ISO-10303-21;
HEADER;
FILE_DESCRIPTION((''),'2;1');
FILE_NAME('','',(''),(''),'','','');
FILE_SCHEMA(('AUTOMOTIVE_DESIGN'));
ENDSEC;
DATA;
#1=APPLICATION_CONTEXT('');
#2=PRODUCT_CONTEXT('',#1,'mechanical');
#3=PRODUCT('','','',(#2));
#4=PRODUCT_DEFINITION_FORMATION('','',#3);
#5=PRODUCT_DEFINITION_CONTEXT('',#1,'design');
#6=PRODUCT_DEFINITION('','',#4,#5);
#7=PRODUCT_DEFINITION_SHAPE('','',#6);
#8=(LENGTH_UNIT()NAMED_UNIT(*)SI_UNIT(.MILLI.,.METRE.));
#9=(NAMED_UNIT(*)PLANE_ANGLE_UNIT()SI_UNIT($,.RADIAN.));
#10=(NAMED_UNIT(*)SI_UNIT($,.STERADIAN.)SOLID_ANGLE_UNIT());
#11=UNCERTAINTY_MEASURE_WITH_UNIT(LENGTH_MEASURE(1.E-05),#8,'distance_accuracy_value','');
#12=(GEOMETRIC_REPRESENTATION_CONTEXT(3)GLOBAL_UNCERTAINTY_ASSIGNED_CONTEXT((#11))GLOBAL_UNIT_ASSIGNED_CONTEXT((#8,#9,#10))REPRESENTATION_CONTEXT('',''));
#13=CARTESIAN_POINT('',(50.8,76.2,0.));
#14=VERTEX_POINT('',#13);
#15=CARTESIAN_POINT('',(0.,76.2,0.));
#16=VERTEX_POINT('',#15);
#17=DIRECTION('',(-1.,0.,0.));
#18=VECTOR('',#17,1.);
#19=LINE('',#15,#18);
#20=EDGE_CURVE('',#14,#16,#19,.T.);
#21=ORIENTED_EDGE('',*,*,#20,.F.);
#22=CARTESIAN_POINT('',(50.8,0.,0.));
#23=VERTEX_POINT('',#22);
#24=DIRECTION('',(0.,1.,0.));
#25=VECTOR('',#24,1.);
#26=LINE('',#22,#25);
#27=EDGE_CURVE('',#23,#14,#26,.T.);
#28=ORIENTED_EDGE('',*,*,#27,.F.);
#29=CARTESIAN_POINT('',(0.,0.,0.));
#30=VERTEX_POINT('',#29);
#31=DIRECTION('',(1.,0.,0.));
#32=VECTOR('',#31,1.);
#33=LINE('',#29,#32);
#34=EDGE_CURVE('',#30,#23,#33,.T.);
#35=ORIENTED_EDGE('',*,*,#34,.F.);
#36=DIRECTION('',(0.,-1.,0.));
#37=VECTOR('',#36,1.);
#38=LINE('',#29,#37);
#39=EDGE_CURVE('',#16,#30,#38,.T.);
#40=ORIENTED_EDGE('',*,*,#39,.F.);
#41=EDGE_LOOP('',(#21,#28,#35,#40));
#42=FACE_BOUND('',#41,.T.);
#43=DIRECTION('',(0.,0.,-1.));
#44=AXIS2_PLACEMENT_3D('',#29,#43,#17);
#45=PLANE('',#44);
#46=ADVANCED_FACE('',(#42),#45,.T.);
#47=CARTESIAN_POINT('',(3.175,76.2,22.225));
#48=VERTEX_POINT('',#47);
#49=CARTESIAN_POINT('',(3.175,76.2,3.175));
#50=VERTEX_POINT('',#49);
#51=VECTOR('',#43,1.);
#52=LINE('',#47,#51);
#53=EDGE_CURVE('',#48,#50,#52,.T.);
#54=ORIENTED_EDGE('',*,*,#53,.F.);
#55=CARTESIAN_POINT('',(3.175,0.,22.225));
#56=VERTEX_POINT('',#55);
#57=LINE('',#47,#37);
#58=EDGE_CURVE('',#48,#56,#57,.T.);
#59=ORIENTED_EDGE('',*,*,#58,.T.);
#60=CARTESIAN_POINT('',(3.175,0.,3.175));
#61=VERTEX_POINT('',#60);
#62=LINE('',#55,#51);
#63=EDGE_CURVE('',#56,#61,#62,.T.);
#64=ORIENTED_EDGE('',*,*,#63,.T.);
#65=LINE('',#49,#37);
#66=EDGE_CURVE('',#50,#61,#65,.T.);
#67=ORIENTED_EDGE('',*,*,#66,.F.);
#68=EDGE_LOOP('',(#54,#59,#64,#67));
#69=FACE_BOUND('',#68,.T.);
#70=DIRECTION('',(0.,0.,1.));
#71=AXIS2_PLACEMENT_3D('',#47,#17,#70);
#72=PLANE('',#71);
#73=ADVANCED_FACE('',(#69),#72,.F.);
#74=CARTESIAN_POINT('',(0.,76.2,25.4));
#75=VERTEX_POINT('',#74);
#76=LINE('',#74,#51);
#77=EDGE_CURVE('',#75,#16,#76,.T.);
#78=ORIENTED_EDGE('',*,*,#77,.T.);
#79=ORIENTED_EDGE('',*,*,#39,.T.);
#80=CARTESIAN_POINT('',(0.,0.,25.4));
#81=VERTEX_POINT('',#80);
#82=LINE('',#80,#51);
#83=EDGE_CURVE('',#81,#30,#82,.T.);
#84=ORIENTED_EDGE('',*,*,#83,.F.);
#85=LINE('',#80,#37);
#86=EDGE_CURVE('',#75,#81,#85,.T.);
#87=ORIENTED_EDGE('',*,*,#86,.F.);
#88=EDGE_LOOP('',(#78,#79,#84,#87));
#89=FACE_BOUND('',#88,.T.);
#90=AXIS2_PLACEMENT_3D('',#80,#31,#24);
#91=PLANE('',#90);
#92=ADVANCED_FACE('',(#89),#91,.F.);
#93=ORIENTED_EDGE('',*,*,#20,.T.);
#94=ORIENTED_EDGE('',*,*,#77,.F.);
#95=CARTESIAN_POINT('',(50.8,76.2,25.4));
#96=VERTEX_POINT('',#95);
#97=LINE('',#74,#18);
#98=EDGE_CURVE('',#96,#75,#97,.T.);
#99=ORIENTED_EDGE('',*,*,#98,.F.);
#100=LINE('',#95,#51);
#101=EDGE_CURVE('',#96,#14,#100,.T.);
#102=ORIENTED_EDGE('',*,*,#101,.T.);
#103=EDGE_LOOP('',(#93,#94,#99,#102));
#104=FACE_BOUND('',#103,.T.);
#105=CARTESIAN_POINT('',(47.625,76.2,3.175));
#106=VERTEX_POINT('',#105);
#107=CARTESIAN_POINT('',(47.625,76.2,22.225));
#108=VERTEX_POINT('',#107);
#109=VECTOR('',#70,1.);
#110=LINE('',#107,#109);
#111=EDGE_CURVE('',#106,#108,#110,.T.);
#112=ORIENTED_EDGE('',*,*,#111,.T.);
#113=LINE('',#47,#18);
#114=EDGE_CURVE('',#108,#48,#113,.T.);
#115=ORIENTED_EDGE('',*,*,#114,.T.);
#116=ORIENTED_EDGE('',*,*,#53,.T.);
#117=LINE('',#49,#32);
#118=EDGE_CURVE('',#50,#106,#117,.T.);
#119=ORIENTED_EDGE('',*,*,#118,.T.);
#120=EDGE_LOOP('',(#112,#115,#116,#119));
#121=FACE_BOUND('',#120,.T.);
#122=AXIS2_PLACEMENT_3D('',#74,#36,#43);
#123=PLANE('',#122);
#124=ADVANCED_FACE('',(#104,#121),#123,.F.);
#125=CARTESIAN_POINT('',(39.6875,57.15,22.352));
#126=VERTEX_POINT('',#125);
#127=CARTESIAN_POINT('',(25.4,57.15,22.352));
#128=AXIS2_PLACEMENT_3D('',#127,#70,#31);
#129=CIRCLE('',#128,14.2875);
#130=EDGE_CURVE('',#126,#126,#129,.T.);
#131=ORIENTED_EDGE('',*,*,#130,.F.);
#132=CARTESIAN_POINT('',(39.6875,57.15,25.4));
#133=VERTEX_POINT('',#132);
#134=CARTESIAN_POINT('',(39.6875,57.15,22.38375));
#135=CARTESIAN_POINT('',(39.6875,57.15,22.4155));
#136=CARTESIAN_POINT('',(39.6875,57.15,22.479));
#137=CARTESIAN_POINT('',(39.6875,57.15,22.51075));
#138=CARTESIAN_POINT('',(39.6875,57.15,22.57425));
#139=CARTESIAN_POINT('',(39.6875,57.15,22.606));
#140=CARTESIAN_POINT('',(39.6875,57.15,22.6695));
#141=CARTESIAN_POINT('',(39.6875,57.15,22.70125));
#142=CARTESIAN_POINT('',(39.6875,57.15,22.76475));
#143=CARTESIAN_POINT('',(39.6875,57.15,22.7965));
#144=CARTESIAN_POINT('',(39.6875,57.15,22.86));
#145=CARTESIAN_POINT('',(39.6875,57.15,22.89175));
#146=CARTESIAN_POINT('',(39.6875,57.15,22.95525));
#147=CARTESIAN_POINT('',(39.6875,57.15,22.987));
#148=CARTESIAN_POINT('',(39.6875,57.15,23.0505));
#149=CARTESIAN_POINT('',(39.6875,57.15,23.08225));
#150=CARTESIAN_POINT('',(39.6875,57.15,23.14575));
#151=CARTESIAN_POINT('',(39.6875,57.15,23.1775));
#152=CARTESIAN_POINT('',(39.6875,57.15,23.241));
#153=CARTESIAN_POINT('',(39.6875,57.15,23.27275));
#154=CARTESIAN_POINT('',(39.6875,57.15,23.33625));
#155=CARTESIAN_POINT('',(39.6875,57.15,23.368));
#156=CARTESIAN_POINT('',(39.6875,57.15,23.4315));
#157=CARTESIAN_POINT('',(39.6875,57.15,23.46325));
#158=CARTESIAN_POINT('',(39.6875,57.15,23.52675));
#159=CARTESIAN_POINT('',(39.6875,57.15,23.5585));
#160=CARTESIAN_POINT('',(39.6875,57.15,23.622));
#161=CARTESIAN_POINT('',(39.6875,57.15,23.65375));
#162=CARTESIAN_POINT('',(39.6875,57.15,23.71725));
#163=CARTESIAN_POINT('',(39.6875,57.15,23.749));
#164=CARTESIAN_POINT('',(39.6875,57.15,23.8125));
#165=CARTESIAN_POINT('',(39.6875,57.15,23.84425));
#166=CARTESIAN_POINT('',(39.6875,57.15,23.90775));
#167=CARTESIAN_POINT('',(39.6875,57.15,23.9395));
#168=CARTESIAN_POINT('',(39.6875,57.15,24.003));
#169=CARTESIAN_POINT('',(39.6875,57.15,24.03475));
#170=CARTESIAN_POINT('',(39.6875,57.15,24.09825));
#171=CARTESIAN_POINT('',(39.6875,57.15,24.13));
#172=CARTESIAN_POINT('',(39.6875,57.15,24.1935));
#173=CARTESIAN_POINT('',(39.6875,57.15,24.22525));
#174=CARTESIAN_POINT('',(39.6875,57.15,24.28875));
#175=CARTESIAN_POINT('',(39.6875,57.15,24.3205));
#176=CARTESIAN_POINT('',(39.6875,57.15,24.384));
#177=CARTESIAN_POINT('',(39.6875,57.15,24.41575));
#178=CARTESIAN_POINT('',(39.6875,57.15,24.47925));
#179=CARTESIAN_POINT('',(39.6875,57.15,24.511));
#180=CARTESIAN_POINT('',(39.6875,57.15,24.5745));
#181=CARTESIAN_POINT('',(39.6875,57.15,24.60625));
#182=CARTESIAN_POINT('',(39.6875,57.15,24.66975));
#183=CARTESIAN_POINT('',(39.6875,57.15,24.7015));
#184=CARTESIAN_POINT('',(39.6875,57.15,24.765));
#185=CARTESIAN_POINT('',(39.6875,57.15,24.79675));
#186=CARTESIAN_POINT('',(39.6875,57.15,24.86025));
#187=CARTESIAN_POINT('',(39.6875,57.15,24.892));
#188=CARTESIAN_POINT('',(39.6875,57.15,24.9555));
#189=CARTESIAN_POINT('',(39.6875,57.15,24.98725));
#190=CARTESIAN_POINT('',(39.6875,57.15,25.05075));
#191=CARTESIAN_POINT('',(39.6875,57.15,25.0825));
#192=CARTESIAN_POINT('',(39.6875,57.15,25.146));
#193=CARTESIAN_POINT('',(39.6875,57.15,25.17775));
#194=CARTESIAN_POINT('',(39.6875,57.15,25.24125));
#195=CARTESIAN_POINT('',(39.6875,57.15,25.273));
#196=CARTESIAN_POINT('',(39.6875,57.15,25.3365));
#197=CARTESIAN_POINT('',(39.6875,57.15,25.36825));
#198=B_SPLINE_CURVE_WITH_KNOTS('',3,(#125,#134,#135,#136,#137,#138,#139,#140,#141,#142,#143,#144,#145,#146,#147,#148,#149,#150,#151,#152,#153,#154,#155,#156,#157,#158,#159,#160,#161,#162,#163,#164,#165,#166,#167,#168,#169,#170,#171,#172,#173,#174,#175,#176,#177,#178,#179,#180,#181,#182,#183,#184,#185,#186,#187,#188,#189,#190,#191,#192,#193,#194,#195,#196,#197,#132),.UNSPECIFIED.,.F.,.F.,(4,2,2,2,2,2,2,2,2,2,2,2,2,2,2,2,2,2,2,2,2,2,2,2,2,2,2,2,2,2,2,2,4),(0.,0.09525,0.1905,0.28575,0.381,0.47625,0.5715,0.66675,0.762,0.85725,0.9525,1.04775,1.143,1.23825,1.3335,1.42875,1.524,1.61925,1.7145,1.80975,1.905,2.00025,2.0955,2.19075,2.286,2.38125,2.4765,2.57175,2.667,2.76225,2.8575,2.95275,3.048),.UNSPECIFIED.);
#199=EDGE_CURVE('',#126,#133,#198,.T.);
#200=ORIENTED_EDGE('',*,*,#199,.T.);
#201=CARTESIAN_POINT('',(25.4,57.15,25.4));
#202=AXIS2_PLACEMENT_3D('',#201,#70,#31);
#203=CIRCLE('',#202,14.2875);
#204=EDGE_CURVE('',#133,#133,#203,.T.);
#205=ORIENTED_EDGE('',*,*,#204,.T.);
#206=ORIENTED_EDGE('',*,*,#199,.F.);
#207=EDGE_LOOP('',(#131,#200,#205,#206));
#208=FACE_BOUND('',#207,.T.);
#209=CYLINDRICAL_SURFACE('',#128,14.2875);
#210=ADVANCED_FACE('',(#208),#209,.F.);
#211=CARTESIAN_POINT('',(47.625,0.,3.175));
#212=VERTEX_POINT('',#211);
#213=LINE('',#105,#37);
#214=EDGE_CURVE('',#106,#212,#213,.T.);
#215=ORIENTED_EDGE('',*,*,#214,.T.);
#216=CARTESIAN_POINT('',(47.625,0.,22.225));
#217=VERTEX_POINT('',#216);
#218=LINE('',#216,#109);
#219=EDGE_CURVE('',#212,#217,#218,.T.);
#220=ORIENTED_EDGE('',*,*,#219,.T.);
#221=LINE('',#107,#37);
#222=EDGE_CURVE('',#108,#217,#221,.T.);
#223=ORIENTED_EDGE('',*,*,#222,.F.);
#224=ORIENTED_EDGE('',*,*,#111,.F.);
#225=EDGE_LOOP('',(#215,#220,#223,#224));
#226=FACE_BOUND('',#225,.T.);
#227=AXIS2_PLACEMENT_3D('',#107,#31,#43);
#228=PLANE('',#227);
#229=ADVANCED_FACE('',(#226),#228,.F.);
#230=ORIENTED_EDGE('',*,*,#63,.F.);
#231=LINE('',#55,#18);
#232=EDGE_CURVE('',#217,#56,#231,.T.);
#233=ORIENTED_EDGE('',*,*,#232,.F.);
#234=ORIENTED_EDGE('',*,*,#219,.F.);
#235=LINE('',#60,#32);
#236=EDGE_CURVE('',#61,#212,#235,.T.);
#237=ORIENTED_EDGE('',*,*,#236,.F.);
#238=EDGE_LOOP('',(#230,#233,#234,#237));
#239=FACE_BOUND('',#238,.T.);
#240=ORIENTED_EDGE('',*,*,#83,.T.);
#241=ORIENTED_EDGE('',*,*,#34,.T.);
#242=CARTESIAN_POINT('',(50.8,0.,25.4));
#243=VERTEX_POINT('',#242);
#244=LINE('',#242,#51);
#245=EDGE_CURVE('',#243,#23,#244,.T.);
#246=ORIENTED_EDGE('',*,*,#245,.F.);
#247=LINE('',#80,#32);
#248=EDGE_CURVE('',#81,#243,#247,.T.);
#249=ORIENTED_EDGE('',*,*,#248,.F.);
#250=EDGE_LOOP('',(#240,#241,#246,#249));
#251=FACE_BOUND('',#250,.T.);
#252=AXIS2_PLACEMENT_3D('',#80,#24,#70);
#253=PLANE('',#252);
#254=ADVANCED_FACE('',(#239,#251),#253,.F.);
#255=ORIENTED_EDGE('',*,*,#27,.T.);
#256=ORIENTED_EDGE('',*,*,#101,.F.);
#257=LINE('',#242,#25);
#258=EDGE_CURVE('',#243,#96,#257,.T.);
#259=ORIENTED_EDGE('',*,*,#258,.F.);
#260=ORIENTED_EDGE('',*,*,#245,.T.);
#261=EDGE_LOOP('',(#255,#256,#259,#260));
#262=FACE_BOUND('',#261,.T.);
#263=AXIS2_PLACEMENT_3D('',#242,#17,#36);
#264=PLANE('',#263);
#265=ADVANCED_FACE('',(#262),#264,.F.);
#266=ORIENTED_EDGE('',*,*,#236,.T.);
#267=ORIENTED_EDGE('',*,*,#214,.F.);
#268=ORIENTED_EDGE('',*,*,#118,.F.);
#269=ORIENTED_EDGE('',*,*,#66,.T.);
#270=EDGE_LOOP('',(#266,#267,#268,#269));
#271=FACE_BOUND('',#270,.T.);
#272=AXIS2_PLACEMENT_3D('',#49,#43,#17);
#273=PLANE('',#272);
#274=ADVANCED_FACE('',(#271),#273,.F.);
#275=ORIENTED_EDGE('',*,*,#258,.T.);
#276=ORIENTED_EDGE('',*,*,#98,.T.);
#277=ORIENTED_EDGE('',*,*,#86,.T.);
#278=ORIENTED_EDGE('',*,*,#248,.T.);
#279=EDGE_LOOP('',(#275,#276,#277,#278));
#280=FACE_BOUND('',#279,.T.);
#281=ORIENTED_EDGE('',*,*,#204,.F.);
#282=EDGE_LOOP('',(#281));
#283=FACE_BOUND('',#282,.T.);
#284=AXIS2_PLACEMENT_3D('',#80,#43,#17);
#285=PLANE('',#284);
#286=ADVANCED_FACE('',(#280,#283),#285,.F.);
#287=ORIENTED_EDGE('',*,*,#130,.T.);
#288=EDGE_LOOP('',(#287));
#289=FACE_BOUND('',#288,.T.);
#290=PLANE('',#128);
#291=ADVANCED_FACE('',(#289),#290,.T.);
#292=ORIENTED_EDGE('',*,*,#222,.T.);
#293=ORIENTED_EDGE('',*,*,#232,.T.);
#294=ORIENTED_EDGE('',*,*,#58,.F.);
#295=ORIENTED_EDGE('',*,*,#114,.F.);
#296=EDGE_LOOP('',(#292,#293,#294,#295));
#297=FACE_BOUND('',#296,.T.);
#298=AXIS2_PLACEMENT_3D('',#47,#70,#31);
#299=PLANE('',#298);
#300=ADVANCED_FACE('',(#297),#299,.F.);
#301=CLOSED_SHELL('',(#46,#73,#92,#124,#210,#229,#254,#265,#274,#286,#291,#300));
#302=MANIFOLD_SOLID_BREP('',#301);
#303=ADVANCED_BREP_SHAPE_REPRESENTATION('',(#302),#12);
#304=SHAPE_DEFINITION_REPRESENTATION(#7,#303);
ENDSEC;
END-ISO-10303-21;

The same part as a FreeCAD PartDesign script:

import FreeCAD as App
import Part
import Sketcher

V = App.Vector
Q = App.Units.Quantity


def add_polygon(sketch, points):
    """Adds a closed chain of lines whose ends are joined by coincident constraints."""
    first, n = sketch.GeometryCount, len(points)
    for a, b in zip(points, points[1:] + points[:1]):
        sketch.addGeometry(Part.LineSegment(App.Vector(*a, 0), App.Vector(*b, 0)), False)
    for i in range(n):
        sketch.addConstraint(Sketcher.Constraint("Coincident", first + i, 2, first + (i + 1) % n, 1))

doc = App.newDocument("Part")
params = doc.addObject("Spreadsheet::Sheet", "Params")
for row, (alias, value) in enumerate([
    ("sketch1_width", "2 in"),
    ("sketch1_height", "3 in"),
    ("pad1_length", "1 in"),
    ("sketch2_width", "1.75 in"),
    ("sketch2_height", "0.75 in"),
    ("sketch3_diameter", "1.125 in"),
    ("pocket2_length", "0.12 in"),
], start=1):
    params.set(f"A{row}", alias)
    params.set(f"B{row}", "=" + value)
    params.setAlias(f"B{row}", alias)

body = doc.addObject("PartDesign::Body", "Body")

# Sketch on XY plane
sketch1 = body.newObject("Sketcher::SketchObject", "Sketch")
sketch1.AttachmentSupport = (doc.getObject("XY_Plane"), [""])
sketch1.MapMode = "FlatFace"
add_polygon(sketch1, [(0, 76), (0, 0), (51, 0), (51, 76)])  # lines 0-3
sketch1.addConstraint([
    Sketcher.Constraint("Vertical", 0),
    Sketcher.Constraint("Horizontal", 1),
    Sketcher.Constraint("Vertical", 2),
    Sketcher.Constraint("Horizontal", 3),
    Sketcher.Constraint("Coincident", 0, 2, -1, 1),
    Sketcher.Constraint("DistanceX", 1, 1, 1, 2, Q("2 in")),
    Sketcher.Constraint("DistanceY", 0, 2, 0, 1, Q("3 in")),
])
sketch1.setExpression("Constraints[9]", "Params.sketch1_width")
sketch1.setExpression("Constraints[10]", "Params.sketch1_height")
pad1 = body.newObject("PartDesign::Pad", "Pad")
pad1.Profile = sketch1
pad1.setExpression("Length", "Params.pad1_length")

# Sketch on XZ plane
sketch2 = body.newObject("Sketcher::SketchObject", "Sketch001")
sketch2.AttachmentSupport = (doc.getObject("XZ_Plane"), [""])
sketch2.MapMode = "FlatFace"
add_polygon(sketch2, [(3, 22), (3, 3), (48, 3), (48, 22)])  # lines 0-3
sketch2.addConstraint([
    Sketcher.Constraint("Vertical", 0),
    Sketcher.Constraint("Horizontal", 1),
    Sketcher.Constraint("Vertical", 2),
    Sketcher.Constraint("Horizontal", 3),
    Sketcher.Constraint("DistanceX", 1, 1, 1, 2, Q("1.75 in")),
    Sketcher.Constraint("DistanceY", 0, 2, 0, 1, Q("0.75 in")),
    Sketcher.Constraint("DistanceX", -1, 1, 0, 2, Q("0.125 in")),
    Sketcher.Constraint("DistanceY", -1, 1, 0, 2, Q("0.125 in")),
])
sketch2.setExpression("Constraints[8]", "Params.sketch2_width")
sketch2.setExpression("Constraints[9]", "Params.sketch2_height")
pocket1 = body.newObject("PartDesign::Pocket", "Pocket")
pocket1.Profile = sketch2
pocket1.Type = "ThroughAll"

# Sketch on XY plane
sketch3 = body.newObject("Sketcher::SketchObject", "Sketch002")
sketch3.AttachmentSupport = (doc.getObject("XY_Plane"), [""])
sketch3.MapMode = "FlatFace"
sketch3.AttachmentOffset = App.Placement(V(0, 0, 1 * 25.4), App.Rotation())
sketch3.addGeometry(Part.Circle(V(25, 57, 0), V(0, 0, 1), 14), False)
sketch3.addConstraint([
    Sketcher.Constraint("Diameter", 0, Q("1.125 in")),
    Sketcher.Constraint("DistanceX", -1, 1, 0, 3, Q("1 in")),
    Sketcher.Constraint("DistanceY", -1, 1, 0, 3, Q("2.25 in")),
])
sketch3.setExpression("Constraints[0]", "Params.sketch3_diameter")
pocket2 = body.newObject("PartDesign::Pocket", "Pocket001")
pocket2.Profile = sketch3
pocket2.setExpression("Length", "Params.pocket2_length")

doc.recompute()
